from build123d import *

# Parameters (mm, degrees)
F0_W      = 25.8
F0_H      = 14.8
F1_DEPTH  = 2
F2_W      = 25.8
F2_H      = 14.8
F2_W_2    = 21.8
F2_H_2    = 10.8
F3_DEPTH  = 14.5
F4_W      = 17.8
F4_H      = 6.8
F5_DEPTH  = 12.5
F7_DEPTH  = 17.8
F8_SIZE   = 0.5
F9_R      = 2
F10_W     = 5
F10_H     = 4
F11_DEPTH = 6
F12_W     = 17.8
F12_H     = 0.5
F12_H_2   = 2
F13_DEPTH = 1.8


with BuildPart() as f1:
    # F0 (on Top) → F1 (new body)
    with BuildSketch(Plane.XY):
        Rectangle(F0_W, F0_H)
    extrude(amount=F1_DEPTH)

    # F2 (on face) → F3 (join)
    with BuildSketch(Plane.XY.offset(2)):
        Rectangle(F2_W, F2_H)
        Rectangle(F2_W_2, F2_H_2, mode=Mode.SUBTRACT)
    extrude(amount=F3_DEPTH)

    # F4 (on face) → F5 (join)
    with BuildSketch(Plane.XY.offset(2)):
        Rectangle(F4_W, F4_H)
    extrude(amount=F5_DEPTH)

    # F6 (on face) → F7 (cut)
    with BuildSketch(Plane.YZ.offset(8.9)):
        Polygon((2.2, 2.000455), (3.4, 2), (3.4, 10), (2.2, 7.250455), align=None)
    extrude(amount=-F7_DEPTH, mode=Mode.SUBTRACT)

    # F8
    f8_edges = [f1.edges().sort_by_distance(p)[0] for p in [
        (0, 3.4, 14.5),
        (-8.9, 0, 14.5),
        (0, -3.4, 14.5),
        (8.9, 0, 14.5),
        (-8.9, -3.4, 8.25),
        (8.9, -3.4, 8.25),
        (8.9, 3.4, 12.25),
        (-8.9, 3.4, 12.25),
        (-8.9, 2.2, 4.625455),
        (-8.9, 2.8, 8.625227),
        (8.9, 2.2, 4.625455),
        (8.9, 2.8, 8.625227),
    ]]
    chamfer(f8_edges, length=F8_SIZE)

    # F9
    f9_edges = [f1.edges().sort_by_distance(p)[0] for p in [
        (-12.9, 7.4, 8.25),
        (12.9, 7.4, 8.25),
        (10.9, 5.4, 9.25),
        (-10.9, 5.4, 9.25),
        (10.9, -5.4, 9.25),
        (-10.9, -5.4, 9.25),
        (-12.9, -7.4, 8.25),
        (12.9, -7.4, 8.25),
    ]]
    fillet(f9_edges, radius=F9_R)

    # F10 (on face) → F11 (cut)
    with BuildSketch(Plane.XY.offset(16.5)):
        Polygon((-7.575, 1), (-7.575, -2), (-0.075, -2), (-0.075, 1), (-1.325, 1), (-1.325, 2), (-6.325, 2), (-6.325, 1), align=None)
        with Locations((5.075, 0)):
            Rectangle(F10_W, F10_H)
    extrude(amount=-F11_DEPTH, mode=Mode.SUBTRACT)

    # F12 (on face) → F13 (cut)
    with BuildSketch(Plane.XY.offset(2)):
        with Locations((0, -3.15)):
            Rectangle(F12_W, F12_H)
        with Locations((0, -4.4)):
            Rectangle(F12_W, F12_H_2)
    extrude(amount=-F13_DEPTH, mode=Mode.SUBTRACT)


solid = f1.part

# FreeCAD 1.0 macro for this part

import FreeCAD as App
import Part
import Sketcher
Q = App.Units.Quantity


def edges_at(feature, points):
    """Names of the edges that pass closest to the given points."""
    edges = feature.Shape.Edges
    near = lambda p: min(range(len(edges)), key=lambda i: edges[i].distToShape(Part.Vertex(*p))[0])
    return sorted({f"Edge{near(p) + 1}" for p in points})

doc = App.newDocument("Part")
params = doc.addObject("Spreadsheet::Sheet", "Params")
for row, (alias, value) in enumerate([
    ("sketch1_width", "25.8 mm"),
    ("sketch1_height", "14.8 mm"),
    ("pad1_length", "2 mm"),
    ("sketch2_width", "25.8 mm"),
    ("sketch2_width2", "21.8 mm"),
    ("sketch2_height", "14.8 mm"),
    ("sketch2_height2", "10.8 mm"),
    ("pad2_length", "14.5 mm"),
    ("sketch3_width", "17.8 mm"),
    ("sketch3_height", "6.8 mm"),
    ("pad3_length", "12.5 mm"),
    ("sketch4_height", "8 mm"),
    ("sketch4_length", "3 mm"),
    ("sketch4_length2", "1.2 mm"),
    ("sketch4_height2", "5.25 mm"),
    ("pocket1_length", "17.8 mm"),
    ("chamfer_size", "0.5 mm"),
    ("fillet_radius", "2 mm"),
    ("sketch5_width", "5 mm"),
    ("sketch5_height", "3 mm"),
    ("sketch5_height2", "1 mm"),
    ("sketch5_width2", "7.5 mm"),
    ("pocket2_length", "6 mm"),
    ("sketch6_width", "17.8 mm"),
    ("sketch6_height", "2.5 mm"),
    ("pocket3_length", "1.8 mm"),
], start=1):
    params.set(f"A{row}", alias)
    params.set(f"B{row}", "=" + value)
    params.setAlias(f"B{row}", alias)

body = doc.addObject("PartDesign::Body", "Body")

# Sketch on XY plane
sketch1 = body.newObject("Sketcher::SketchObject", "Sketch")
sketch1.AttachmentSupport = (doc.getObject("XY_Plane"), [""])
sketch1.MapMode = "FlatFace"
sketch1.addGeometry([
    Part.LineSegment(App.Vector(-13, 7, 0), App.Vector(-13, -7, 0)),
    Part.LineSegment(App.Vector(-13, -7, 0), App.Vector(13, -7, 0)),
    Part.LineSegment(App.Vector(13, -7, 0), App.Vector(13, 7, 0)),
    Part.LineSegment(App.Vector(13, 7, 0), App.Vector(-13, 7, 0)),
], False)
sketch1.addConstraint([
    Sketcher.Constraint("Coincident", 0, 2, 1, 1),
    Sketcher.Constraint("Coincident", 1, 2, 2, 1),
    Sketcher.Constraint("Coincident", 2, 2, 3, 1),
    Sketcher.Constraint("Coincident", 3, 2, 0, 1),
    Sketcher.Constraint("Vertical", 0),
    Sketcher.Constraint("Horizontal", 1),
    Sketcher.Constraint("Vertical", 2),
    Sketcher.Constraint("Horizontal", 3),
    Sketcher.Constraint("Symmetric", 0, 2, 2, 2, -1, 1),
    Sketcher.Constraint("DistanceX", 1, 1, 1, 2, Q("25.8 mm")),
    Sketcher.Constraint("DistanceY", 0, 2, 0, 1, Q("14.8 mm")),
])
sketch1.setExpression("Constraints[9]", "Params.sketch1_width")
sketch1.setExpression("Constraints[10]", "Params.sketch1_height")
pad1 = body.newObject("PartDesign::Pad", "Pad")
pad1.Profile = sketch1
pad1.setExpression("Length", "Params.pad1_length")

# Sketch on XY plane
sketch2 = body.newObject("Sketcher::SketchObject", "Sketch001")
sketch2.AttachmentSupport = (doc.getObject("XY_Plane"), [""])
sketch2.MapMode = "FlatFace"
sketch2.AttachmentOffset = App.Placement(App.Vector(0, 0, 2), App.Rotation())
sketch2.addGeometry([
    Part.LineSegment(App.Vector(-13, 7, 0), App.Vector(-13, -7, 0)),  # 0
    Part.LineSegment(App.Vector(-13, -7, 0), App.Vector(13, -7, 0)),  # 1
    Part.LineSegment(App.Vector(13, -7, 0), App.Vector(13, 7, 0)),  # 2
    Part.LineSegment(App.Vector(13, 7, 0), App.Vector(-13, 7, 0)),  # 3
    Part.LineSegment(App.Vector(11, -5, 0), App.Vector(-11, -5, 0)),  # 4
    Part.LineSegment(App.Vector(-11, -5, 0), App.Vector(-11, 5, 0)),  # 5
    Part.LineSegment(App.Vector(-11, 5, 0), App.Vector(11, 5, 0)),  # 6
    Part.LineSegment(App.Vector(11, 5, 0), App.Vector(11, -5, 0)),  # 7
], False)
sketch2.addConstraint([
    Sketcher.Constraint("Coincident", 0, 2, 1, 1),
    Sketcher.Constraint("Coincident", 1, 2, 2, 1),
    Sketcher.Constraint("Coincident", 2, 2, 3, 1),
    Sketcher.Constraint("Coincident", 3, 2, 0, 1),
    Sketcher.Constraint("Coincident", 4, 2, 5, 1),
    Sketcher.Constraint("Coincident", 5, 2, 6, 1),
    Sketcher.Constraint("Coincident", 6, 2, 7, 1),
    Sketcher.Constraint("Coincident", 7, 2, 4, 1),
    Sketcher.Constraint("Vertical", 0),
    Sketcher.Constraint("Horizontal", 1),
    Sketcher.Constraint("Vertical", 2),
    Sketcher.Constraint("Horizontal", 3),
    Sketcher.Constraint("Horizontal", 4),
    Sketcher.Constraint("Vertical", 5),
    Sketcher.Constraint("Horizontal", 6),
    Sketcher.Constraint("Vertical", 7),
    Sketcher.Constraint("Symmetric", 0, 2, 2, 2, -1, 1),
    Sketcher.Constraint("Symmetric", 4, 2, 6, 2, -1, 1),
    Sketcher.Constraint("DistanceX", 1, 1, 1, 2, Q("25.8 mm")),
    Sketcher.Constraint("DistanceX", 4, 2, 4, 1, Q("21.8 mm")),
    Sketcher.Constraint("DistanceY", 0, 2, 0, 1, Q("14.8 mm")),
    Sketcher.Constraint("DistanceY", 5, 1, 5, 2, Q("10.8 mm")),
])
sketch2.setExpression("Constraints[18]", "Params.sketch2_width")
sketch2.setExpression("Constraints[19]", "Params.sketch2_width2")
sketch2.setExpression("Constraints[20]", "Params.sketch2_height")
sketch2.setExpression("Constraints[21]", "Params.sketch2_height2")
pad2 = body.newObject("PartDesign::Pad", "Pad001")
pad2.Profile = sketch2
pad2.setExpression("Length", "Params.pad2_length")

# Sketch on XY plane
sketch3 = body.newObject("Sketcher::SketchObject", "Sketch002")
sketch3.AttachmentSupport = (doc.getObject("XY_Plane"), [""])
sketch3.MapMode = "FlatFace"
sketch3.AttachmentOffset = App.Placement(App.Vector(0, 0, 2), App.Rotation())
sketch3.addGeometry([
    Part.LineSegment(App.Vector(-9, 3, 0), App.Vector(-9, -3, 0)),
    Part.LineSegment(App.Vector(-9, -3, 0), App.Vector(9, -3, 0)),
    Part.LineSegment(App.Vector(9, -3, 0), App.Vector(9, 3, 0)),
    Part.LineSegment(App.Vector(9, 3, 0), App.Vector(-9, 3, 0)),
], False)
sketch3.addConstraint([
    Sketcher.Constraint("Coincident", 0, 2, 1, 1),
    Sketcher.Constraint("Coincident", 1, 2, 2, 1),
    Sketcher.Constraint("Coincident", 2, 2, 3, 1),
    Sketcher.Constraint("Coincident", 3, 2, 0, 1),
    Sketcher.Constraint("Vertical", 0),
    Sketcher.Constraint("Horizontal", 1),
    Sketcher.Constraint("Vertical", 2),
    Sketcher.Constraint("Horizontal", 3),
    Sketcher.Constraint("Symmetric", 0, 2, 2, 2, -1, 1),
    Sketcher.Constraint("DistanceX", 1, 1, 1, 2, Q("17.8 mm")),
    Sketcher.Constraint("DistanceY", 0, 2, 0, 1, Q("6.8 mm")),
])
sketch3.setExpression("Constraints[9]", "Params.sketch3_width")
sketch3.setExpression("Constraints[10]", "Params.sketch3_height")
pad3 = body.newObject("PartDesign::Pad", "Pad002")
pad3.Profile = sketch3
pad3.setExpression("Length", "Params.pad3_length")

# Sketch on YZ plane
sketch4 = body.newObject("Sketcher::SketchObject", "Sketch003")
sketch4.AttachmentSupport = (doc.getObject("YZ_Plane"), [""])
sketch4.MapMode = "FlatFace"
sketch4.AttachmentOffset = App.Placement(App.Vector(0, 0, 8.9), App.Rotation())
sketch4.addGeometry([
    Part.LineSegment(App.Vector(2.2, 2, 0), App.Vector(3.4, 2, 0)),
    Part.LineSegment(App.Vector(3.4, 2, 0), App.Vector(3.4, 10, 0)),
    Part.LineSegment(App.Vector(3.4, 10, 0), App.Vector(2.2, 7.3, 0)),
    Part.LineSegment(App.Vector(2.2, 7.3, 0), App.Vector(2.2, 2, 0)),
], False)
sketch4.addConstraint([
    Sketcher.Constraint("Coincident", 0, 2, 1, 1),
    Sketcher.Constraint("Coincident", 1, 2, 2, 1),
    Sketcher.Constraint("Coincident", 2, 2, 3, 1),
    Sketcher.Constraint("Coincident", 3, 2, 0, 1),
    Sketcher.Constraint("Vertical", 1),
    Sketcher.Constraint("Vertical", 3),
    Sketcher.Constraint("DistanceY", 1, 1, 1, 2, Q("8 mm")),
    Sketcher.Constraint("Distance", 2, Q("3 mm")),
    Sketcher.Constraint("DistanceY", -1, 1, 0, 2, Q("2 mm")),
    Sketcher.Constraint("Distance", 0, Q("1.2 mm")),
    Sketcher.Constraint("DistanceY", 3, 2, 3, 1, Q("5.25 mm")),
    Sketcher.Constraint("DistanceX", -1, 1, 0, 2, Q("3.4 mm")),
])
sketch4.setExpression("Constraints[6]", "Params.sketch4_height")
sketch4.setExpression("Constraints[7]", "Params.sketch4_length")
sketch4.setExpression("Constraints[9]", "Params.sketch4_length2")
sketch4.setExpression("Constraints[10]", "Params.sketch4_height2")
pocket1 = body.newObject("PartDesign::Pocket", "Pocket")
pocket1.Profile = sketch4
pocket1.setExpression("Length", "Params.pocket1_length")
doc.recompute()

chamfer = body.newObject("PartDesign::Chamfer", "Chamfer")
chamfer.Base = (pocket1, edges_at(pocket1, [
    (0, 3.4, 14.5),
    (-8.9, 0, 14.5),
    (0, -3.4, 14.5),
    (8.9, 0, 14.5),
    (-8.9, -3.4, 8.25),
    (8.9, -3.4, 8.25),
    (8.9, 3.4, 12.25),
    (-8.9, 3.4, 12.25),
    (-8.9, 2.2, 4.625),
    (-8.9, 2.8, 8.625),
    (8.9, 2.2, 4.625),
    (8.9, 2.8, 8.625),
]))
chamfer.setExpression("Size", "Params.chamfer_size")
doc.recompute()

fillet = body.newObject("PartDesign::Fillet", "Fillet")
fillet.Base = (chamfer, edges_at(chamfer, [
    (-12.9, 7.4, 8.25),
    (12.9, 7.4, 8.25),
    (10.9, 5.4, 9.25),
    (-10.9, 5.4, 9.25),
    (10.9, -5.4, 9.25),
    (-10.9, -5.4, 9.25),
    (-12.9, -7.4, 8.25),
    (12.9, -7.4, 8.25),
]))
fillet.setExpression("Radius", "Params.fillet_radius")

# Sketch on XY plane
sketch5 = body.newObject("Sketcher::SketchObject", "Sketch004")
sketch5.AttachmentSupport = (doc.getObject("XY_Plane"), [""])
sketch5.MapMode = "FlatFace"
sketch5.AttachmentOffset = App.Placement(App.Vector(0, 0, 16.5), App.Rotation())
sketch5.addGeometry([
    Part.LineSegment(App.Vector(-7.6, 1, 0), App.Vector(-7.6, -2, 0)),  # 0
    Part.LineSegment(App.Vector(-7.6, -2, 0), App.Vector(-0.1, -2, 0)),  # 1
    Part.LineSegment(App.Vector(-0.1, -2, 0), App.Vector(-0.1, 1, 0)),  # 2
    Part.LineSegment(App.Vector(-0.1, 1, 0), App.Vector(-1.3, 1, 0)),  # 3
    Part.LineSegment(App.Vector(-1.3, 1, 0), App.Vector(-1.3, 2, 0)),  # 4
    Part.LineSegment(App.Vector(-1.3, 2, 0), App.Vector(-6.3, 2, 0)),  # 5
    Part.LineSegment(App.Vector(-6.3, 2, 0), App.Vector(-6.3, 1, 0)),  # 6
    Part.LineSegment(App.Vector(-6.3, 1, 0), App.Vector(-7.6, 1, 0)),  # 7
    Part.LineSegment(App.Vector(2.6, 2, 0), App.Vector(2.6, -2, 0)),  # 8
    Part.LineSegment(App.Vector(2.6, -2, 0), App.Vector(7.6, -2, 0)),  # 9
    Part.LineSegment(App.Vector(7.6, -2, 0), App.Vector(7.6, 2, 0)),  # 10
    Part.LineSegment(App.Vector(7.6, 2, 0), App.Vector(2.6, 2, 0)),  # 11
], False)
sketch5.addConstraint([
    Sketcher.Constraint("Coincident", 0, 2, 1, 1),
    Sketcher.Constraint("Coincident", 1, 2, 2, 1),
    Sketcher.Constraint("Coincident", 2, 2, 3, 1),
    Sketcher.Constraint("Coincident", 3, 2, 4, 1),
    Sketcher.Constraint("Coincident", 4, 2, 5, 1),
    Sketcher.Constraint("Coincident", 5, 2, 6, 1),
    Sketcher.Constraint("Coincident", 6, 2, 7, 1),
    Sketcher.Constraint("Coincident", 7, 2, 0, 1),
    Sketcher.Constraint("Coincident", 8, 2, 9, 1),
    Sketcher.Constraint("Coincident", 9, 2, 10, 1),
    Sketcher.Constraint("Coincident", 10, 2, 11, 1),
    Sketcher.Constraint("Coincident", 11, 2, 8, 1),
    Sketcher.Constraint("Vertical", 0),
    Sketcher.Constraint("Horizontal", 1),
    Sketcher.Constraint("Vertical", 2),
    Sketcher.Constraint("Horizontal", 3),
    Sketcher.Constraint("Vertical", 4),
    Sketcher.Constraint("Horizontal", 5),
    Sketcher.Constraint("Vertical", 6),
    Sketcher.Constraint("Horizontal", 7),
    Sketcher.Constraint("Vertical", 8),
    Sketcher.Constraint("Horizontal", 9),
    Sketcher.Constraint("Vertical", 10),
    Sketcher.Constraint("Horizontal", 11),
    Sketcher.Constraint("Symmetric", 0, 2, 10, 2, -1, 1),
    Sketcher.Constraint("Horizontal", 3, 2, 6, 2),
    Sketcher.Constraint("Horizontal", 1, 2, 8, 2),
    Sketcher.Constraint("Horizontal", 5, 2, 10, 2),
    Sketcher.Constraint("Equal", 3, 7),
    Sketcher.Constraint("Equal", 5, 9),
    Sketcher.Constraint("DistanceX", 5, 2, 5, 1, Q("5 mm")),
    Sketcher.Constraint("DistanceY", 0, 2, 0, 1, Q("3 mm")),
    Sketcher.Constraint("DistanceY", 4, 1, 4, 2, Q("1 mm")),
    Sketcher.Constraint("DistanceX", 1, 1, 1, 2, Q("7.5 mm")),
    Sketcher.Constraint("DistanceX", 3, 2, 8, 2, Q("3.9 mm")),
])
sketch5.setExpression("Constraints[30]", "Params.sketch5_width")
sketch5.setExpression("Constraints[31]", "Params.sketch5_height")
sketch5.setExpression("Constraints[32]", "Params.sketch5_height2")
sketch5.setExpression("Constraints[33]", "Params.sketch5_width2")
pocket2 = body.newObject("PartDesign::Pocket", "Pocket001")
pocket2.Profile = sketch5
pocket2.setExpression("Length", "Params.pocket2_length")

# Sketch on XY plane
sketch6 = body.newObject("Sketcher::SketchObject", "Sketch005")
sketch6.AttachmentSupport = (doc.getObject("XY_Plane"), [""])
sketch6.MapMode = "FlatFace"
sketch6.AttachmentOffset = App.Placement(App.Vector(0, 0, 2), App.Rotation())
sketch6.addGeometry([
    Part.LineSegment(App.Vector(-8.9, -2.9, 0), App.Vector(-8.9, -5.4, 0)),
    Part.LineSegment(App.Vector(-8.9, -5.4, 0), App.Vector(8.9, -5.4, 0)),
    Part.LineSegment(App.Vector(8.9, -5.4, 0), App.Vector(8.9, -2.9, 0)),
    Part.LineSegment(App.Vector(8.9, -2.9, 0), App.Vector(-8.9, -2.9, 0)),
], False)
sketch6.addConstraint([
    Sketcher.Constraint("Coincident", 0, 2, 1, 1),
    Sketcher.Constraint("Coincident", 1, 2, 2, 1),
    Sketcher.Constraint("Coincident", 2, 2, 3, 1),
    Sketcher.Constraint("Coincident", 3, 2, 0, 1),
    Sketcher.Constraint("Vertical", 0),
    Sketcher.Constraint("Horizontal", 1),
    Sketcher.Constraint("Vertical", 2),
    Sketcher.Constraint("Horizontal", 3),
    Sketcher.Constraint("DistanceX", 1, 1, 1, 2, Q("17.8 mm")),
    Sketcher.Constraint("DistanceY", 0, 2, 0, 1, Q("2.5 mm")),
    Sketcher.Constraint("DistanceX", 0, 2, -1, 1, Q("8.9 mm")),
    Sketcher.Constraint("DistanceY", 0, 2, -1, 1, Q("5.4 mm")),
])
sketch6.setExpression("Constraints[8]", "Params.sketch6_width")
sketch6.setExpression("Constraints[9]", "Params.sketch6_height")
pocket3 = body.newObject("PartDesign::Pocket", "Pocket002")
pocket3.Profile = sketch6
pocket3.setExpression("Length", "Params.pocket3_length")

doc.recompute()
